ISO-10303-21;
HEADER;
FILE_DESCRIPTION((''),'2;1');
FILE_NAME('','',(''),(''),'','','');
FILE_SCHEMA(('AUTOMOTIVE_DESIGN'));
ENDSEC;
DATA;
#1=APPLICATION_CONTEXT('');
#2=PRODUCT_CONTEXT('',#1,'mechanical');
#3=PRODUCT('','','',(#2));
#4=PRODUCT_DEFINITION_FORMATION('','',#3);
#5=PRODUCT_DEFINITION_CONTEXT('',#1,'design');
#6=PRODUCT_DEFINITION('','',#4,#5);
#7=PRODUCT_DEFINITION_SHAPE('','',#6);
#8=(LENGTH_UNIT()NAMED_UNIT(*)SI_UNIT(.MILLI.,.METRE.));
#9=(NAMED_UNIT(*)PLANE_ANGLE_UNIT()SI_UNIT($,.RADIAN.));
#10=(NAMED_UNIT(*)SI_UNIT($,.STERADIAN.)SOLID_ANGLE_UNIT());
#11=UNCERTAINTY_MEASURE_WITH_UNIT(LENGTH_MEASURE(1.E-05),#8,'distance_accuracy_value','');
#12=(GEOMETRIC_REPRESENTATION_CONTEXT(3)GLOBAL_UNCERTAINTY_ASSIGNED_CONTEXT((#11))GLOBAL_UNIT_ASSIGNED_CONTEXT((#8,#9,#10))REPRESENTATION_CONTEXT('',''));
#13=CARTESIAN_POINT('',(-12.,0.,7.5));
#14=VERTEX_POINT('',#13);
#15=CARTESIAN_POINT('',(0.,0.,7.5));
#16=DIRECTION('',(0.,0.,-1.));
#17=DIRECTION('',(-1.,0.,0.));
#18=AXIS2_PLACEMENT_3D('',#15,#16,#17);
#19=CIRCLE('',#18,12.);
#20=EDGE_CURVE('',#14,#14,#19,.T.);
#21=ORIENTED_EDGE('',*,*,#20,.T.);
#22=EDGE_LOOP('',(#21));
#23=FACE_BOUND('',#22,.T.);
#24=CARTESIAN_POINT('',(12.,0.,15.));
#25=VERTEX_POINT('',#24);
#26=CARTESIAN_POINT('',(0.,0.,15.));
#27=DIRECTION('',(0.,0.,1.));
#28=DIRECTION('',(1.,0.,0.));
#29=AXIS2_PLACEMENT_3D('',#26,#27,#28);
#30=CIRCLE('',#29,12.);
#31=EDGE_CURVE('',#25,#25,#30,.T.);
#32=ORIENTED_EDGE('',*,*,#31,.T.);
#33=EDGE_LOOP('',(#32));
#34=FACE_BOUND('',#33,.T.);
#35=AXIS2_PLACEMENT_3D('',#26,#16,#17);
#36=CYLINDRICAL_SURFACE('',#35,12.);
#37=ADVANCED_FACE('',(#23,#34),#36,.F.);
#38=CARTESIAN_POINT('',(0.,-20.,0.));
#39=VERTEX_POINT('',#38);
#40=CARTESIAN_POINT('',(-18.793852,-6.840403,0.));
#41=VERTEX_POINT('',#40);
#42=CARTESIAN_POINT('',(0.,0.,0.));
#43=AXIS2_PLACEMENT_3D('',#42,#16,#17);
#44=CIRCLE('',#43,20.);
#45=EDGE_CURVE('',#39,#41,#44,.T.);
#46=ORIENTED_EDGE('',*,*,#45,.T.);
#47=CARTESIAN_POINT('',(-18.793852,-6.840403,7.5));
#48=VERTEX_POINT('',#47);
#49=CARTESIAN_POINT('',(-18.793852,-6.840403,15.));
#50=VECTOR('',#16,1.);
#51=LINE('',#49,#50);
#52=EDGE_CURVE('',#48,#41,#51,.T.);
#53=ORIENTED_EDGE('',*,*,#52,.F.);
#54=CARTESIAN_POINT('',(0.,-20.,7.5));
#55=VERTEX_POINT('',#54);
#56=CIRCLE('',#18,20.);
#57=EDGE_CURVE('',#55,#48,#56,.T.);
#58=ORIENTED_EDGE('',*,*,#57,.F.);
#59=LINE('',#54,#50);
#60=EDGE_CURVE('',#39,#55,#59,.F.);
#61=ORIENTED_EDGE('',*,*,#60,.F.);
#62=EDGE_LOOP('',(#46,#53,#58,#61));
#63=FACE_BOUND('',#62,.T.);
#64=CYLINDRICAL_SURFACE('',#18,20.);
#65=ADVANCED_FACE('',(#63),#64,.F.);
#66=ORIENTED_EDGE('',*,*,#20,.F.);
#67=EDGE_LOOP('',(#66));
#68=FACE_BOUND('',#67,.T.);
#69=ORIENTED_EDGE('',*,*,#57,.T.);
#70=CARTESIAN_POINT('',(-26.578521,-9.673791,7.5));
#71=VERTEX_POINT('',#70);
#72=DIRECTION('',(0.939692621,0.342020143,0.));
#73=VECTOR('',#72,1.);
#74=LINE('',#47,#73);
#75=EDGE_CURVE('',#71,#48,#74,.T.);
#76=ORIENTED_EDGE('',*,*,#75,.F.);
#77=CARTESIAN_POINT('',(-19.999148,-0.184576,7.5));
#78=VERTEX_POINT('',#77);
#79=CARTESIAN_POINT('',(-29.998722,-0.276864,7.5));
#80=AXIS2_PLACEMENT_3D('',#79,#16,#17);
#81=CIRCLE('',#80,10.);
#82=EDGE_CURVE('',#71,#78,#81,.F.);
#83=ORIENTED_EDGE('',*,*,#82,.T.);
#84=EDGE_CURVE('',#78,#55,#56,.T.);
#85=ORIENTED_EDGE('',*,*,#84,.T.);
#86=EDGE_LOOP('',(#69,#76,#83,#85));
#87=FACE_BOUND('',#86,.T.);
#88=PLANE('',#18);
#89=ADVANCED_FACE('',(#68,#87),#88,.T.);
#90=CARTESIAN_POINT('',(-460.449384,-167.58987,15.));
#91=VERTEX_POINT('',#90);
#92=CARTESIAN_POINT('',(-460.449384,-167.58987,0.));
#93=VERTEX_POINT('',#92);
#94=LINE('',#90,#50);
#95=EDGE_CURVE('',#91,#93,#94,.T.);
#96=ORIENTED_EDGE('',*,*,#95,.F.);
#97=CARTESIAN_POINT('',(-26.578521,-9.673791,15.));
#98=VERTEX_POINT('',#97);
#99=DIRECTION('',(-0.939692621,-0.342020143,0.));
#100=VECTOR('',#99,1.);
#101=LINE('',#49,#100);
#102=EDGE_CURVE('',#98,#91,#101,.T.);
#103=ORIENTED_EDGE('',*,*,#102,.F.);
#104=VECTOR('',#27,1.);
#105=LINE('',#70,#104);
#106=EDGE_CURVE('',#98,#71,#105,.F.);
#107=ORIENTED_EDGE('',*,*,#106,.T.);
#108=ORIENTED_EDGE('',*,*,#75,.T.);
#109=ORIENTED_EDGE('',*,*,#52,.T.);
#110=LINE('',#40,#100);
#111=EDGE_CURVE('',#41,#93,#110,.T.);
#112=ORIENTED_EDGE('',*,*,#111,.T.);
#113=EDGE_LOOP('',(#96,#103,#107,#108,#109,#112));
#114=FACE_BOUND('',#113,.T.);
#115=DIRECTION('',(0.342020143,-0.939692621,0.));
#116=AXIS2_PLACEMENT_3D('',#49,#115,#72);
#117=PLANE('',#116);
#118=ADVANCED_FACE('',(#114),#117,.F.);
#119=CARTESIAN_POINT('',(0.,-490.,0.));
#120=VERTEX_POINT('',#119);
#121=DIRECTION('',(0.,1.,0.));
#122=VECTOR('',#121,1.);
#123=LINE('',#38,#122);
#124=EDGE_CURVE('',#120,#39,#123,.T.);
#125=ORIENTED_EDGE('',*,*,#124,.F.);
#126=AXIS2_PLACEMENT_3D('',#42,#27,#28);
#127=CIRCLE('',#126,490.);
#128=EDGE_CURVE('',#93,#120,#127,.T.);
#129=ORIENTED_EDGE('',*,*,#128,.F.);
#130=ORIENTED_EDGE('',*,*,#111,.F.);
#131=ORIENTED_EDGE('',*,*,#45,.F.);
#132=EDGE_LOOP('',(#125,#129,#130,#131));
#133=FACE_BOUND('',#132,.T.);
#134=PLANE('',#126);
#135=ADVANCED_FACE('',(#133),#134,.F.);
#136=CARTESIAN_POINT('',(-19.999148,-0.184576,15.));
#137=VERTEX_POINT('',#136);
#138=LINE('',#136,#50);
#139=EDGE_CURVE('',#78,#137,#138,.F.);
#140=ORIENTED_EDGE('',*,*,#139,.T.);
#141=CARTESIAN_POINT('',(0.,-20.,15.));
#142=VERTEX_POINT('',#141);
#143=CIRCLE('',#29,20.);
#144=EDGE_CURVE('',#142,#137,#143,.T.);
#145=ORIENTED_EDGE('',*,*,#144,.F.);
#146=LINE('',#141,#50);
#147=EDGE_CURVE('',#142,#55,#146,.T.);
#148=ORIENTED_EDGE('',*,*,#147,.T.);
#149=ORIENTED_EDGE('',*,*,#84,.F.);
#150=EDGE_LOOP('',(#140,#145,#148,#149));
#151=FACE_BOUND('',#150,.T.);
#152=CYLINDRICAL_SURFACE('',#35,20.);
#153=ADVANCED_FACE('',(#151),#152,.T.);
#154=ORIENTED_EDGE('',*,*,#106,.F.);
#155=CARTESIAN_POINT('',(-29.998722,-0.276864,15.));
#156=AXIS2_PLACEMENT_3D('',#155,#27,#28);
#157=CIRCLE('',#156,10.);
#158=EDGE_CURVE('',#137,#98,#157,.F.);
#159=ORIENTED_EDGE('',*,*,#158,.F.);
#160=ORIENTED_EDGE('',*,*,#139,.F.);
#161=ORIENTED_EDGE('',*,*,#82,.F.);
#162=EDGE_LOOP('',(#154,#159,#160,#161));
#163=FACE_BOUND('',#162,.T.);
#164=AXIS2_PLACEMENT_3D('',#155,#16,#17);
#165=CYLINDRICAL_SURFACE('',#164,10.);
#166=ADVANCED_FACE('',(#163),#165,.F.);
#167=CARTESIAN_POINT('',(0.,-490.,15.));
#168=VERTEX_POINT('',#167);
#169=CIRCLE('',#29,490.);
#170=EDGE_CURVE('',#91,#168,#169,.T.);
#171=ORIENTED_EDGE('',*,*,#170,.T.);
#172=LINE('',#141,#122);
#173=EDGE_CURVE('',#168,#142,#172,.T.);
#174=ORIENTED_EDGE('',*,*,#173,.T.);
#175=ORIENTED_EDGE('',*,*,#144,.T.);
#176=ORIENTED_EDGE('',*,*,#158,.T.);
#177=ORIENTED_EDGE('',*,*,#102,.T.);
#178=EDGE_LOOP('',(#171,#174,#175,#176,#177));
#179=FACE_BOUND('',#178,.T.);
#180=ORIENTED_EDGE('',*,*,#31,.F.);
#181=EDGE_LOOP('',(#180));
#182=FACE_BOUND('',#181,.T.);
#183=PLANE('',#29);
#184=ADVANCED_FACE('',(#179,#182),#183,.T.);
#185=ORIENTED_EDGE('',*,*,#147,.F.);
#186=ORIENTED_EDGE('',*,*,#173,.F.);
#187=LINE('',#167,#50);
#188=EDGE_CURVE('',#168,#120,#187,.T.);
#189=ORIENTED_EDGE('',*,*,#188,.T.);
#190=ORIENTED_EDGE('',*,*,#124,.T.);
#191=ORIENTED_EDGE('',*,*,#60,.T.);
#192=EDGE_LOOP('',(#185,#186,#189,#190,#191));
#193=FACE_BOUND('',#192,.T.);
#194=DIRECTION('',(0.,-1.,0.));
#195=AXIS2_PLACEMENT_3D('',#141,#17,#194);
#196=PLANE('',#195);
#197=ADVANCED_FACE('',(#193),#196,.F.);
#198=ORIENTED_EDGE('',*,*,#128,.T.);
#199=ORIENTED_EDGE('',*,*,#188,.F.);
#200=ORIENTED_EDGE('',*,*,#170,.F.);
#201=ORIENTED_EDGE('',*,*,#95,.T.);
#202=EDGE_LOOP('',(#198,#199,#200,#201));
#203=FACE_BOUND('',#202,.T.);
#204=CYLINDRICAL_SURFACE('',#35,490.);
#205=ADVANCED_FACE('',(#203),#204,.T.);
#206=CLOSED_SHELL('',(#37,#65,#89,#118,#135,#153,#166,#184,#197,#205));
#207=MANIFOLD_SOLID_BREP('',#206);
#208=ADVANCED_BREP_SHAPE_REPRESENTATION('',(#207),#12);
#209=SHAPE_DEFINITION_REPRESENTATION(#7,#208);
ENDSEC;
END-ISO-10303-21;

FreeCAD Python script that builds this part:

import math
import FreeCAD as App
import Part
import Sketcher
Q = App.Units.Quantity


def edges_at(feature, points):
    """Names of the edges that pass closest to the given points."""
    edges = feature.Shape.Edges
    near = lambda p: min(range(len(edges)), key=lambda i: edges[i].distToShape(Part.Vertex(*p))[0])
    return sorted({f"Edge{near(p) + 1}" for p in points})

doc = App.newDocument("Part")
body = doc.addObject("PartDesign::Body", "Body")

# Sketch on XY plane
sketch1 = body.newObject("Sketcher::SketchObject", "Sketch")
sketch1.AttachmentSupport = (doc.getObject("XY_Plane"), [""])
sketch1.MapMode = "FlatFace"
sketch1.addGeometry([
    Part.LineSegment(App.Vector(0, -490, 0), App.Vector(0, -20, 0)),  # 0
    Part.ArcOfCircle(Part.Circle(App.Vector(0, 0, 0), App.Vector(0, 0, 1), 20), math.radians(-90), math.radians(200)),  # 1
    Part.LineSegment(App.Vector(-18.793852, -6.840403, 0), App.Vector(-460.449384, -167.58987, 0)),  # 2
    Part.ArcOfCircle(Part.Circle(App.Vector(0, 0, 0), App.Vector(0, 0, 1), 490), math.radians(-160), math.radians(-90)),  # 3
    Part.Circle(App.Vector(0, 0, 0), App.Vector(0, 0, 1), 12),  # 4
], False)
sketch1.addConstraint([
    Sketcher.Constraint("Coincident", 0, 2, 1, 1),
    Sketcher.Constraint("Coincident", 1, 2, 2, 1),
    Sketcher.Constraint("Coincident", 2, 2, 3, 1),
    Sketcher.Constraint("Coincident", 3, 2, 0, 1),
    Sketcher.Constraint("Vertical", 0),
    Sketcher.Constraint("Coincident", 1, 3, -1, 1),
    Sketcher.Constraint("Coincident", 3, 3, -1, 1),
    Sketcher.Constraint("Coincident", 4, 3, -1, 1),
    Sketcher.Constraint("PointOnObject", 0, 2, -2),
    Sketcher.Constraint("Diameter", 4, Q("24 mm")),
    Sketcher.Constraint("Radius", 1, Q("20 mm")),
    Sketcher.Constraint("Radius", 3, Q("490 mm")),
    Sketcher.Constraint("Angle", 2, Q("-160 deg")),
    Sketcher.Constraint("DistanceY", 2, 2, -1, 1, Q("167.58987 mm")),
])
pad1 = body.newObject("PartDesign::Pad", "Pad")
pad1.Profile = sketch1
pad1.Length = 15

# Sketch on XY plane
sketch2 = body.newObject("Sketcher::SketchObject", "Sketch001")
sketch2.AttachmentSupport = (doc.getObject("XY_Plane"), [""])
sketch2.MapMode = "FlatFace"
sketch2.addGeometry(Part.Circle(App.Vector(0, 0, 0), App.Vector(0, 0, 1), 20), False)
sketch2.addConstraint([
    Sketcher.Constraint("Coincident", 0, 3, -1, 1),
    Sketcher.Constraint("Diameter", 0, Q("40 mm")),
])
pocket1 = body.newObject("PartDesign::Pocket", "Pocket")
pocket1.Profile = sketch2
pocket1.Length = 7.5
pocket1.Reversed = True
doc.recompute()

fillet = body.newObject("PartDesign::Fillet", "Fillet")
fillet.Base = (pocket1, edges_at(pocket1, [(-18.794, -6.84, 11.25)]))
fillet.Radius = 10

doc.recompute()
